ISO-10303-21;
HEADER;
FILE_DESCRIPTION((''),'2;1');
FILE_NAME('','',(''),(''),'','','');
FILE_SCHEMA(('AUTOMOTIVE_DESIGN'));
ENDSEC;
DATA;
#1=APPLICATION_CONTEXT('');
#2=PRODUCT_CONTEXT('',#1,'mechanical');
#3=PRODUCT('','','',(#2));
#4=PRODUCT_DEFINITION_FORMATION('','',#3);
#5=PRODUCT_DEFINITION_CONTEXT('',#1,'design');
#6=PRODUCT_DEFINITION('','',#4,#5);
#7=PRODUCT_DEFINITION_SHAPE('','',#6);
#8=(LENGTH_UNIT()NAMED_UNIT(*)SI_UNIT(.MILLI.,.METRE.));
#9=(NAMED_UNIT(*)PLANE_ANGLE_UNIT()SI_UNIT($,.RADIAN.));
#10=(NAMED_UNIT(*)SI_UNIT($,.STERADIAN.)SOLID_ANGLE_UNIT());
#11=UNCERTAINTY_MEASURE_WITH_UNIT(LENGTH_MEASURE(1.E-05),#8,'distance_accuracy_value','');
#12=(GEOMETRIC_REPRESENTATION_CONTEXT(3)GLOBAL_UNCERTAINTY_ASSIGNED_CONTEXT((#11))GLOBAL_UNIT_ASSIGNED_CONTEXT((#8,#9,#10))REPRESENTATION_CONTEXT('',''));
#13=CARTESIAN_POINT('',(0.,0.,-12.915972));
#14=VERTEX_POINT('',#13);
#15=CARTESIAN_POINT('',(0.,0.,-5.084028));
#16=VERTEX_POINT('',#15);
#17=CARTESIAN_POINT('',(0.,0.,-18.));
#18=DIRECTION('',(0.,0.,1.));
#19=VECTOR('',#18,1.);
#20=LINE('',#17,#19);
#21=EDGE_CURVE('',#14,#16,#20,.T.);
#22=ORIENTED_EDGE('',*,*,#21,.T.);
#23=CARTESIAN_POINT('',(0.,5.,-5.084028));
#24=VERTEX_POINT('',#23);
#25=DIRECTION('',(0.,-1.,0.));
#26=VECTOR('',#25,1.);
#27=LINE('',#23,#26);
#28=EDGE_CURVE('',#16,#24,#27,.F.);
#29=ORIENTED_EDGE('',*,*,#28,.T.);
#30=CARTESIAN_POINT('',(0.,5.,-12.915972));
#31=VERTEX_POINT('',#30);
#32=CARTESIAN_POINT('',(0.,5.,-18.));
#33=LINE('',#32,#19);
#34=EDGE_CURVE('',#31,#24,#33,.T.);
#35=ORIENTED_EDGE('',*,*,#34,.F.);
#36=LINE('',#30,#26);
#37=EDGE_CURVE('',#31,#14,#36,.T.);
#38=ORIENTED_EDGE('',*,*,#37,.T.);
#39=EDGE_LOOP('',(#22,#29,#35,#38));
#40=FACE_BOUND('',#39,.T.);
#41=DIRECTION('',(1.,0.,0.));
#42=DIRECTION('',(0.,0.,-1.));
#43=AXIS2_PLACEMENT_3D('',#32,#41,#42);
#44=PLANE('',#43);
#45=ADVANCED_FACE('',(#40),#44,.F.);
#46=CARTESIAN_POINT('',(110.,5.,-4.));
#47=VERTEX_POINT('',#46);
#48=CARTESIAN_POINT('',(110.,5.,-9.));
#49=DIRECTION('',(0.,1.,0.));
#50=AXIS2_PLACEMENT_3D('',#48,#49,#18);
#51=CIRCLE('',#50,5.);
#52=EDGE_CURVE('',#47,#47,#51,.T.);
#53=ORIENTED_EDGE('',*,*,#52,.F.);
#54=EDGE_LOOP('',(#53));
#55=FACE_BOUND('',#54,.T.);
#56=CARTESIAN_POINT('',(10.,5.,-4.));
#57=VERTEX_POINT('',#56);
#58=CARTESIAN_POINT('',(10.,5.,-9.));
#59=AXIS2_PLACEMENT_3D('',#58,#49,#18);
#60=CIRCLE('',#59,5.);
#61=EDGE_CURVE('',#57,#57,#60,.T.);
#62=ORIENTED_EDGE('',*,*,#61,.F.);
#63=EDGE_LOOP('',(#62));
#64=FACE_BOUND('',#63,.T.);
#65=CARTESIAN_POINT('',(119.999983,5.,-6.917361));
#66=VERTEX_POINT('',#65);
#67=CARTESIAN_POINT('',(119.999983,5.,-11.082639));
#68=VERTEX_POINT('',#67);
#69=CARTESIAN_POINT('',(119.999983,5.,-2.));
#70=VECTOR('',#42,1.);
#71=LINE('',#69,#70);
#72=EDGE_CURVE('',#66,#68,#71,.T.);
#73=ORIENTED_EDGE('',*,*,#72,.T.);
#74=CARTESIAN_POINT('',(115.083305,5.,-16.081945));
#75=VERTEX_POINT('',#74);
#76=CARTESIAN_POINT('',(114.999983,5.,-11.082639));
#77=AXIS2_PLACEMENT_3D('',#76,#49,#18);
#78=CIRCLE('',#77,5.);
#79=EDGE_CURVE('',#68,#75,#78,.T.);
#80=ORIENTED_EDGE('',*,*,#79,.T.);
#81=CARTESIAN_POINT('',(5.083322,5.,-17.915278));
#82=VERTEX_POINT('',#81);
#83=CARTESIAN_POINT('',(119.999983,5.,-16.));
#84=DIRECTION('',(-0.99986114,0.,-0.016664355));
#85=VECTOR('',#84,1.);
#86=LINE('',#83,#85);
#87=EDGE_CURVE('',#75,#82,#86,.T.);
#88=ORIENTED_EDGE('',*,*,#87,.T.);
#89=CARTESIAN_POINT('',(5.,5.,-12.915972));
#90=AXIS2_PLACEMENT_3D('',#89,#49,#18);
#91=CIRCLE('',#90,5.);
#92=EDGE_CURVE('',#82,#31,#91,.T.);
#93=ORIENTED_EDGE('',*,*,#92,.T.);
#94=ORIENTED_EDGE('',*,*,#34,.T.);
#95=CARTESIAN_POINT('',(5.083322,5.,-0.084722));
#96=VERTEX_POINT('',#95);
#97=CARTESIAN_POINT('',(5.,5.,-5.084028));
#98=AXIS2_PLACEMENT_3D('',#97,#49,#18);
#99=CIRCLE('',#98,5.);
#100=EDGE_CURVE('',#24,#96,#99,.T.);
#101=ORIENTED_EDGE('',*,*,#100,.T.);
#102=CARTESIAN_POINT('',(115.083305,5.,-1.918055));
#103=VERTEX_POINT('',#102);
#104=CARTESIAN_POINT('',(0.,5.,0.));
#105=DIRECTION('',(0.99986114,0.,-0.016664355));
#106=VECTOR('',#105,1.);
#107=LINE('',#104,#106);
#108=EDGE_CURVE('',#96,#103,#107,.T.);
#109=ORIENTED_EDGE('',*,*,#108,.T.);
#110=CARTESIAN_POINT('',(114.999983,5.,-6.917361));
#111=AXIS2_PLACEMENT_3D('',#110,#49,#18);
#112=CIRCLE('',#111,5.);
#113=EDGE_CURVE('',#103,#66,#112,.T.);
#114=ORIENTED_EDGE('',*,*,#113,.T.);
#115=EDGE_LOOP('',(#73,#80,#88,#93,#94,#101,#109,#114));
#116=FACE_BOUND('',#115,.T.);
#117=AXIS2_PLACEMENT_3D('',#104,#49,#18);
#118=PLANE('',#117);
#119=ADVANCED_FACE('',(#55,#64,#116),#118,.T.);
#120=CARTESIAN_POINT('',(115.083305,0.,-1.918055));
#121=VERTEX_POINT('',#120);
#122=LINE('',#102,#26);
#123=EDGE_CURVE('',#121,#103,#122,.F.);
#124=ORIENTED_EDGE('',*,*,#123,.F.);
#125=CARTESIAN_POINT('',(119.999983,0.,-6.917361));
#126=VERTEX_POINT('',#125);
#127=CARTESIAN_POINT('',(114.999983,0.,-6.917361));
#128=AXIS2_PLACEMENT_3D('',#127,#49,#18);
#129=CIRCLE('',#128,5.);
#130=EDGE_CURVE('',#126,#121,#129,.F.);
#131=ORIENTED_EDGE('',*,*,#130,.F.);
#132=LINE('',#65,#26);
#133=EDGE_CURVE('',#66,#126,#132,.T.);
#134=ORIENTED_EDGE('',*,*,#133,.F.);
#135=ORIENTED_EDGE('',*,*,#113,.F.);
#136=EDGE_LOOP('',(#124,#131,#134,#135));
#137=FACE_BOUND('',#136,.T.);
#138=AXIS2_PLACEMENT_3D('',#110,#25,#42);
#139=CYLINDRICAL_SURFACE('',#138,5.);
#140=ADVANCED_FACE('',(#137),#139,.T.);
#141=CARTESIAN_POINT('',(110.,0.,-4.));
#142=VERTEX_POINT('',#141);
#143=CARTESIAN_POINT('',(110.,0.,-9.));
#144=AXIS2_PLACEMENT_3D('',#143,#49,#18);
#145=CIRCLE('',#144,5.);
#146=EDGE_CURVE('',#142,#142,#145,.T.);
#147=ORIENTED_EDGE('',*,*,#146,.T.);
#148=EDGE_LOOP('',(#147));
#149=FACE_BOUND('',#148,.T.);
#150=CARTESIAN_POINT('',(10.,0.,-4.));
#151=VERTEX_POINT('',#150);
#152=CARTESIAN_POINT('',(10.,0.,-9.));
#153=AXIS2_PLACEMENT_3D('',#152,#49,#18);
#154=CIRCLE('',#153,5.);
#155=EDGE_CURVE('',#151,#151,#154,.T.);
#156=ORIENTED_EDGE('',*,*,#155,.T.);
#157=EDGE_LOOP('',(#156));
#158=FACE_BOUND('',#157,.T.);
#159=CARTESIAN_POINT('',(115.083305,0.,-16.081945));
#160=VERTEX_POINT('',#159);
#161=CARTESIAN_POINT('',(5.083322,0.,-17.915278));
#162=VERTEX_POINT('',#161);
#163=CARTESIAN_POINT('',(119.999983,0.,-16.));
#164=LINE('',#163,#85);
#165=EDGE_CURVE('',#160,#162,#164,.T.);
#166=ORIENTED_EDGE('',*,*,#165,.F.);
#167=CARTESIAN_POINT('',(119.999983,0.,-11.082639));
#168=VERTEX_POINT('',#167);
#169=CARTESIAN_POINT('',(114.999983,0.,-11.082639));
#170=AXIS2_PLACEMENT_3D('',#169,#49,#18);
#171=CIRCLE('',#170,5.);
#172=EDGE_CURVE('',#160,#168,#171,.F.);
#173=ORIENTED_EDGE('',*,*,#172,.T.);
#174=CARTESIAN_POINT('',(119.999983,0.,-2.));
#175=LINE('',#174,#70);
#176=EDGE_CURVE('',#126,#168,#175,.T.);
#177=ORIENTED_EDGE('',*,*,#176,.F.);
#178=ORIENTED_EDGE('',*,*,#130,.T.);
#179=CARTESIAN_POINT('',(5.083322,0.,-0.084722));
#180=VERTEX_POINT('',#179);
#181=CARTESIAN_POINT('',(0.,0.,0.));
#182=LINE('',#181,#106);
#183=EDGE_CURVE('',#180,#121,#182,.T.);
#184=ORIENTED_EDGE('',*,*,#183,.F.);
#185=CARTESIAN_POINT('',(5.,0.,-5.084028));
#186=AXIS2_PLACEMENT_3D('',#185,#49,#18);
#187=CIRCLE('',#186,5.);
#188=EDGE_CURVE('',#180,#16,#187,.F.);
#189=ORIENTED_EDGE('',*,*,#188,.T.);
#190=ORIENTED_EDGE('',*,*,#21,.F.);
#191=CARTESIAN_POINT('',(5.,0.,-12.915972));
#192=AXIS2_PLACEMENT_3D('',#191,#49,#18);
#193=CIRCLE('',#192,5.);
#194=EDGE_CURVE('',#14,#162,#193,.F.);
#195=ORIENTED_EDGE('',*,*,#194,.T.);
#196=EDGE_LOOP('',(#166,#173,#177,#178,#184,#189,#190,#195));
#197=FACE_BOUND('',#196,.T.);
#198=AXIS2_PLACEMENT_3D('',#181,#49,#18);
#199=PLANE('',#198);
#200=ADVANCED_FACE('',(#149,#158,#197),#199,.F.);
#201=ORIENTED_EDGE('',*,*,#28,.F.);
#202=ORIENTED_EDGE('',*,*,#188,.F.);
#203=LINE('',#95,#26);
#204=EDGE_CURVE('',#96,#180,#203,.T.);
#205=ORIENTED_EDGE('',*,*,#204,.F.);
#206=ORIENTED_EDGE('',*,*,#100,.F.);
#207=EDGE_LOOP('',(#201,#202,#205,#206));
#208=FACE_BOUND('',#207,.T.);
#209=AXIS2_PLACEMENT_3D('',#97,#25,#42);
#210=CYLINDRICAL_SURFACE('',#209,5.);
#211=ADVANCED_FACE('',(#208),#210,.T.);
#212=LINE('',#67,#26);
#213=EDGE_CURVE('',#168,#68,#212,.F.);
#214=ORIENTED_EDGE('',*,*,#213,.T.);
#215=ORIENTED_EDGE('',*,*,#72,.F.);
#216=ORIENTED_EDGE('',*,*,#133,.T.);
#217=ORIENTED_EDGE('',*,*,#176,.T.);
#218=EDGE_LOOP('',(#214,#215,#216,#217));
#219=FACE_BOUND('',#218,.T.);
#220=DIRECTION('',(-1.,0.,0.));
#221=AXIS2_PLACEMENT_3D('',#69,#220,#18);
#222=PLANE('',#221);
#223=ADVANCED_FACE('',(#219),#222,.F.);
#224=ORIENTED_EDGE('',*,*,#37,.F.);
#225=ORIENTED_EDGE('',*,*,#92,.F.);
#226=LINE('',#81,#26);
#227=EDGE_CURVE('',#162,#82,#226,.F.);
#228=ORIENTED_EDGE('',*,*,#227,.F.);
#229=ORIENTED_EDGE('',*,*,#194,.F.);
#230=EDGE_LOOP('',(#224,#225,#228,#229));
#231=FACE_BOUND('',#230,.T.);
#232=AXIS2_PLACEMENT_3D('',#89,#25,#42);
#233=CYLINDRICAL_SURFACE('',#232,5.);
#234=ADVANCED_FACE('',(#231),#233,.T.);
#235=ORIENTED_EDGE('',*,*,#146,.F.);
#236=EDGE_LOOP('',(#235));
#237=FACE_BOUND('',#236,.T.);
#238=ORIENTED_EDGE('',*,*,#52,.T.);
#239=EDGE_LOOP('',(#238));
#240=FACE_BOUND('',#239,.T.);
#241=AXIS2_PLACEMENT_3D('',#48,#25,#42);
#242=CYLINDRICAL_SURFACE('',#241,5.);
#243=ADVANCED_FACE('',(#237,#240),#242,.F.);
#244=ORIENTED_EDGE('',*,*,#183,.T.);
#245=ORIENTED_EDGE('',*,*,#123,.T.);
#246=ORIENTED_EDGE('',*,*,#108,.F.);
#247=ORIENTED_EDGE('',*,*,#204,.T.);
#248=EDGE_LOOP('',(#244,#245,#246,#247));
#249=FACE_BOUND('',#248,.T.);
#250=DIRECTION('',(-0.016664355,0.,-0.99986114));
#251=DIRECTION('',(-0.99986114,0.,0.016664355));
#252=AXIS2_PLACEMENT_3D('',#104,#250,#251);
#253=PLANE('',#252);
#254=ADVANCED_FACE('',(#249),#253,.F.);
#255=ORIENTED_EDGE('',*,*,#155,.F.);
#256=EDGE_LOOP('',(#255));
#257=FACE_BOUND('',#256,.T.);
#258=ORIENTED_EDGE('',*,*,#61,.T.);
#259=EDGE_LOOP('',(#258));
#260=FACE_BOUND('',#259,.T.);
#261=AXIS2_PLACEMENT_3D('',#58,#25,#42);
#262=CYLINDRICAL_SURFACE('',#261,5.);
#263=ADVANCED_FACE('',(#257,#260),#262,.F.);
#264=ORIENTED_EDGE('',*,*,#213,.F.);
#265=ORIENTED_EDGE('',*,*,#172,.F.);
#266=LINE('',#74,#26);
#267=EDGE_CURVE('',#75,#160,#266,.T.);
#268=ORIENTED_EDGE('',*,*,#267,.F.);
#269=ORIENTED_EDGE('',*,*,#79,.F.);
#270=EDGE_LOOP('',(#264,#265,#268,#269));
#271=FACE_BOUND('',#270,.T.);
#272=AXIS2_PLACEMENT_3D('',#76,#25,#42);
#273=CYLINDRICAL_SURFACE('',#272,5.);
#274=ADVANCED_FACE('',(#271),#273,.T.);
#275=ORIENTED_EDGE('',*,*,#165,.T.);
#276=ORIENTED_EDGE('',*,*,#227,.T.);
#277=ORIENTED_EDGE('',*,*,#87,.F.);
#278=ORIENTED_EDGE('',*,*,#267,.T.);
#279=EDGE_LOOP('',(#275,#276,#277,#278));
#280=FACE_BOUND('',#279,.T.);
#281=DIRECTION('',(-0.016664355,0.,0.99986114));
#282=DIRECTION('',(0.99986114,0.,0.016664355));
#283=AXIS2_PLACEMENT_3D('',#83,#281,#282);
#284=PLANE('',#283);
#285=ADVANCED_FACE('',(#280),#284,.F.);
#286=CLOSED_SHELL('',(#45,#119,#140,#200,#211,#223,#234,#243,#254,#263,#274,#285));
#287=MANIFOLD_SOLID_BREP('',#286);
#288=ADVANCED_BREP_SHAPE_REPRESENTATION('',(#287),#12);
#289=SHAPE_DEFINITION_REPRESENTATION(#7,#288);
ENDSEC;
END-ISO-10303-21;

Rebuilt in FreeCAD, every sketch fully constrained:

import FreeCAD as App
import Part
import Sketcher

V = App.Vector
Q = App.Units.Quantity


def edges_at(feature, points):
    """Names of the edges that pass closest to the given points."""
    edges = feature.Shape.Edges
    near = lambda p: min(range(len(edges)), key=lambda i: edges[i].distToShape(Part.Vertex(*p))[0])
    return sorted({f"Edge{near(p) + 1}" for p in points})


def add_polygon(sketch, points):
    """Adds a closed chain of lines whose ends are joined by coincident constraints."""
    first, n = sketch.GeometryCount, len(points)
    for a, b in zip(points, points[1:] + points[:1]):
        sketch.addGeometry(Part.LineSegment(App.Vector(*a, 0), App.Vector(*b, 0)), False)
    for i in range(n):
        sketch.addConstraint(Sketcher.Constraint("Coincident", first + i, 2, first + (i + 1) % n, 1))

doc = App.newDocument("Part")
body = doc.addObject("PartDesign::Body", "Body")

# Sketch on XZ plane
sketch1 = doc.addObject("Sketcher::SketchObject", "Sketch")
body.addObject(sketch1)
sketch1.AttachmentSupport = (doc.XZ_Plane, [""])
sketch1.MapMode = "FlatFace"
add_polygon(sketch1, [(0, 0), (120, -2), (120, -16), (0, -18)])  # lines 0-3
sketch1.addGeometry(Part.Circle(V(10, -9, 0), V(0, 0, 1), 5), False)  # 4
sketch1.addGeometry(Part.Circle(V(110, -9, 0), V(0, 0, 1), 5), False)  # 5
sketch1.addConstraint([
    Sketcher.Constraint("Vertical", 1),
    Sketcher.Constraint("Vertical", 3),
    Sketcher.Constraint("Coincident", 3, 2, -1, 1),
    Sketcher.Constraint("Equal", 4, 5),
    Sketcher.Constraint("Horizontal", 4, 3, 5, 3),
    Sketcher.Constraint("Equal", 0, 2),
    Sketcher.Constraint("Diameter", 4, Q("10 mm")),
    Sketcher.Constraint("DistanceY", 1, 2, 1, 1, Q("14 mm")),
    Sketcher.Constraint("DistanceY", 3, 1, 3, 2, Q("18 mm")),
    Sketcher.Constraint("DistanceX", -1, 1, 4, 3, Q("10 mm")),
    Sketcher.Constraint("DistanceY", 4, 3, -1, 1, Q("9 mm")),
    Sketcher.Constraint("DistanceX", -1, 1, 5, 3, Q("110 mm")),
    Sketcher.Constraint("Distance", 0, Q("120.016649 mm")),
])
pad1 = doc.addObject("PartDesign::Pad", "Pad")
body.addObject(pad1)
pad1.Profile = sketch1
pad1.Length = 5
pad1.Reversed = True
doc.recompute()

fillet = doc.addObject("PartDesign::Fillet", "Fillet")
body.addObject(fillet)
fillet.Base = (pad1, edges_at(pad1, [
    (0, 2.5, -18),
    (120, 2.5, -16),
    (120, 2.5, -2),
    (0, 2.5, 0),
]))
fillet.Radius = 5

doc.recompute()
